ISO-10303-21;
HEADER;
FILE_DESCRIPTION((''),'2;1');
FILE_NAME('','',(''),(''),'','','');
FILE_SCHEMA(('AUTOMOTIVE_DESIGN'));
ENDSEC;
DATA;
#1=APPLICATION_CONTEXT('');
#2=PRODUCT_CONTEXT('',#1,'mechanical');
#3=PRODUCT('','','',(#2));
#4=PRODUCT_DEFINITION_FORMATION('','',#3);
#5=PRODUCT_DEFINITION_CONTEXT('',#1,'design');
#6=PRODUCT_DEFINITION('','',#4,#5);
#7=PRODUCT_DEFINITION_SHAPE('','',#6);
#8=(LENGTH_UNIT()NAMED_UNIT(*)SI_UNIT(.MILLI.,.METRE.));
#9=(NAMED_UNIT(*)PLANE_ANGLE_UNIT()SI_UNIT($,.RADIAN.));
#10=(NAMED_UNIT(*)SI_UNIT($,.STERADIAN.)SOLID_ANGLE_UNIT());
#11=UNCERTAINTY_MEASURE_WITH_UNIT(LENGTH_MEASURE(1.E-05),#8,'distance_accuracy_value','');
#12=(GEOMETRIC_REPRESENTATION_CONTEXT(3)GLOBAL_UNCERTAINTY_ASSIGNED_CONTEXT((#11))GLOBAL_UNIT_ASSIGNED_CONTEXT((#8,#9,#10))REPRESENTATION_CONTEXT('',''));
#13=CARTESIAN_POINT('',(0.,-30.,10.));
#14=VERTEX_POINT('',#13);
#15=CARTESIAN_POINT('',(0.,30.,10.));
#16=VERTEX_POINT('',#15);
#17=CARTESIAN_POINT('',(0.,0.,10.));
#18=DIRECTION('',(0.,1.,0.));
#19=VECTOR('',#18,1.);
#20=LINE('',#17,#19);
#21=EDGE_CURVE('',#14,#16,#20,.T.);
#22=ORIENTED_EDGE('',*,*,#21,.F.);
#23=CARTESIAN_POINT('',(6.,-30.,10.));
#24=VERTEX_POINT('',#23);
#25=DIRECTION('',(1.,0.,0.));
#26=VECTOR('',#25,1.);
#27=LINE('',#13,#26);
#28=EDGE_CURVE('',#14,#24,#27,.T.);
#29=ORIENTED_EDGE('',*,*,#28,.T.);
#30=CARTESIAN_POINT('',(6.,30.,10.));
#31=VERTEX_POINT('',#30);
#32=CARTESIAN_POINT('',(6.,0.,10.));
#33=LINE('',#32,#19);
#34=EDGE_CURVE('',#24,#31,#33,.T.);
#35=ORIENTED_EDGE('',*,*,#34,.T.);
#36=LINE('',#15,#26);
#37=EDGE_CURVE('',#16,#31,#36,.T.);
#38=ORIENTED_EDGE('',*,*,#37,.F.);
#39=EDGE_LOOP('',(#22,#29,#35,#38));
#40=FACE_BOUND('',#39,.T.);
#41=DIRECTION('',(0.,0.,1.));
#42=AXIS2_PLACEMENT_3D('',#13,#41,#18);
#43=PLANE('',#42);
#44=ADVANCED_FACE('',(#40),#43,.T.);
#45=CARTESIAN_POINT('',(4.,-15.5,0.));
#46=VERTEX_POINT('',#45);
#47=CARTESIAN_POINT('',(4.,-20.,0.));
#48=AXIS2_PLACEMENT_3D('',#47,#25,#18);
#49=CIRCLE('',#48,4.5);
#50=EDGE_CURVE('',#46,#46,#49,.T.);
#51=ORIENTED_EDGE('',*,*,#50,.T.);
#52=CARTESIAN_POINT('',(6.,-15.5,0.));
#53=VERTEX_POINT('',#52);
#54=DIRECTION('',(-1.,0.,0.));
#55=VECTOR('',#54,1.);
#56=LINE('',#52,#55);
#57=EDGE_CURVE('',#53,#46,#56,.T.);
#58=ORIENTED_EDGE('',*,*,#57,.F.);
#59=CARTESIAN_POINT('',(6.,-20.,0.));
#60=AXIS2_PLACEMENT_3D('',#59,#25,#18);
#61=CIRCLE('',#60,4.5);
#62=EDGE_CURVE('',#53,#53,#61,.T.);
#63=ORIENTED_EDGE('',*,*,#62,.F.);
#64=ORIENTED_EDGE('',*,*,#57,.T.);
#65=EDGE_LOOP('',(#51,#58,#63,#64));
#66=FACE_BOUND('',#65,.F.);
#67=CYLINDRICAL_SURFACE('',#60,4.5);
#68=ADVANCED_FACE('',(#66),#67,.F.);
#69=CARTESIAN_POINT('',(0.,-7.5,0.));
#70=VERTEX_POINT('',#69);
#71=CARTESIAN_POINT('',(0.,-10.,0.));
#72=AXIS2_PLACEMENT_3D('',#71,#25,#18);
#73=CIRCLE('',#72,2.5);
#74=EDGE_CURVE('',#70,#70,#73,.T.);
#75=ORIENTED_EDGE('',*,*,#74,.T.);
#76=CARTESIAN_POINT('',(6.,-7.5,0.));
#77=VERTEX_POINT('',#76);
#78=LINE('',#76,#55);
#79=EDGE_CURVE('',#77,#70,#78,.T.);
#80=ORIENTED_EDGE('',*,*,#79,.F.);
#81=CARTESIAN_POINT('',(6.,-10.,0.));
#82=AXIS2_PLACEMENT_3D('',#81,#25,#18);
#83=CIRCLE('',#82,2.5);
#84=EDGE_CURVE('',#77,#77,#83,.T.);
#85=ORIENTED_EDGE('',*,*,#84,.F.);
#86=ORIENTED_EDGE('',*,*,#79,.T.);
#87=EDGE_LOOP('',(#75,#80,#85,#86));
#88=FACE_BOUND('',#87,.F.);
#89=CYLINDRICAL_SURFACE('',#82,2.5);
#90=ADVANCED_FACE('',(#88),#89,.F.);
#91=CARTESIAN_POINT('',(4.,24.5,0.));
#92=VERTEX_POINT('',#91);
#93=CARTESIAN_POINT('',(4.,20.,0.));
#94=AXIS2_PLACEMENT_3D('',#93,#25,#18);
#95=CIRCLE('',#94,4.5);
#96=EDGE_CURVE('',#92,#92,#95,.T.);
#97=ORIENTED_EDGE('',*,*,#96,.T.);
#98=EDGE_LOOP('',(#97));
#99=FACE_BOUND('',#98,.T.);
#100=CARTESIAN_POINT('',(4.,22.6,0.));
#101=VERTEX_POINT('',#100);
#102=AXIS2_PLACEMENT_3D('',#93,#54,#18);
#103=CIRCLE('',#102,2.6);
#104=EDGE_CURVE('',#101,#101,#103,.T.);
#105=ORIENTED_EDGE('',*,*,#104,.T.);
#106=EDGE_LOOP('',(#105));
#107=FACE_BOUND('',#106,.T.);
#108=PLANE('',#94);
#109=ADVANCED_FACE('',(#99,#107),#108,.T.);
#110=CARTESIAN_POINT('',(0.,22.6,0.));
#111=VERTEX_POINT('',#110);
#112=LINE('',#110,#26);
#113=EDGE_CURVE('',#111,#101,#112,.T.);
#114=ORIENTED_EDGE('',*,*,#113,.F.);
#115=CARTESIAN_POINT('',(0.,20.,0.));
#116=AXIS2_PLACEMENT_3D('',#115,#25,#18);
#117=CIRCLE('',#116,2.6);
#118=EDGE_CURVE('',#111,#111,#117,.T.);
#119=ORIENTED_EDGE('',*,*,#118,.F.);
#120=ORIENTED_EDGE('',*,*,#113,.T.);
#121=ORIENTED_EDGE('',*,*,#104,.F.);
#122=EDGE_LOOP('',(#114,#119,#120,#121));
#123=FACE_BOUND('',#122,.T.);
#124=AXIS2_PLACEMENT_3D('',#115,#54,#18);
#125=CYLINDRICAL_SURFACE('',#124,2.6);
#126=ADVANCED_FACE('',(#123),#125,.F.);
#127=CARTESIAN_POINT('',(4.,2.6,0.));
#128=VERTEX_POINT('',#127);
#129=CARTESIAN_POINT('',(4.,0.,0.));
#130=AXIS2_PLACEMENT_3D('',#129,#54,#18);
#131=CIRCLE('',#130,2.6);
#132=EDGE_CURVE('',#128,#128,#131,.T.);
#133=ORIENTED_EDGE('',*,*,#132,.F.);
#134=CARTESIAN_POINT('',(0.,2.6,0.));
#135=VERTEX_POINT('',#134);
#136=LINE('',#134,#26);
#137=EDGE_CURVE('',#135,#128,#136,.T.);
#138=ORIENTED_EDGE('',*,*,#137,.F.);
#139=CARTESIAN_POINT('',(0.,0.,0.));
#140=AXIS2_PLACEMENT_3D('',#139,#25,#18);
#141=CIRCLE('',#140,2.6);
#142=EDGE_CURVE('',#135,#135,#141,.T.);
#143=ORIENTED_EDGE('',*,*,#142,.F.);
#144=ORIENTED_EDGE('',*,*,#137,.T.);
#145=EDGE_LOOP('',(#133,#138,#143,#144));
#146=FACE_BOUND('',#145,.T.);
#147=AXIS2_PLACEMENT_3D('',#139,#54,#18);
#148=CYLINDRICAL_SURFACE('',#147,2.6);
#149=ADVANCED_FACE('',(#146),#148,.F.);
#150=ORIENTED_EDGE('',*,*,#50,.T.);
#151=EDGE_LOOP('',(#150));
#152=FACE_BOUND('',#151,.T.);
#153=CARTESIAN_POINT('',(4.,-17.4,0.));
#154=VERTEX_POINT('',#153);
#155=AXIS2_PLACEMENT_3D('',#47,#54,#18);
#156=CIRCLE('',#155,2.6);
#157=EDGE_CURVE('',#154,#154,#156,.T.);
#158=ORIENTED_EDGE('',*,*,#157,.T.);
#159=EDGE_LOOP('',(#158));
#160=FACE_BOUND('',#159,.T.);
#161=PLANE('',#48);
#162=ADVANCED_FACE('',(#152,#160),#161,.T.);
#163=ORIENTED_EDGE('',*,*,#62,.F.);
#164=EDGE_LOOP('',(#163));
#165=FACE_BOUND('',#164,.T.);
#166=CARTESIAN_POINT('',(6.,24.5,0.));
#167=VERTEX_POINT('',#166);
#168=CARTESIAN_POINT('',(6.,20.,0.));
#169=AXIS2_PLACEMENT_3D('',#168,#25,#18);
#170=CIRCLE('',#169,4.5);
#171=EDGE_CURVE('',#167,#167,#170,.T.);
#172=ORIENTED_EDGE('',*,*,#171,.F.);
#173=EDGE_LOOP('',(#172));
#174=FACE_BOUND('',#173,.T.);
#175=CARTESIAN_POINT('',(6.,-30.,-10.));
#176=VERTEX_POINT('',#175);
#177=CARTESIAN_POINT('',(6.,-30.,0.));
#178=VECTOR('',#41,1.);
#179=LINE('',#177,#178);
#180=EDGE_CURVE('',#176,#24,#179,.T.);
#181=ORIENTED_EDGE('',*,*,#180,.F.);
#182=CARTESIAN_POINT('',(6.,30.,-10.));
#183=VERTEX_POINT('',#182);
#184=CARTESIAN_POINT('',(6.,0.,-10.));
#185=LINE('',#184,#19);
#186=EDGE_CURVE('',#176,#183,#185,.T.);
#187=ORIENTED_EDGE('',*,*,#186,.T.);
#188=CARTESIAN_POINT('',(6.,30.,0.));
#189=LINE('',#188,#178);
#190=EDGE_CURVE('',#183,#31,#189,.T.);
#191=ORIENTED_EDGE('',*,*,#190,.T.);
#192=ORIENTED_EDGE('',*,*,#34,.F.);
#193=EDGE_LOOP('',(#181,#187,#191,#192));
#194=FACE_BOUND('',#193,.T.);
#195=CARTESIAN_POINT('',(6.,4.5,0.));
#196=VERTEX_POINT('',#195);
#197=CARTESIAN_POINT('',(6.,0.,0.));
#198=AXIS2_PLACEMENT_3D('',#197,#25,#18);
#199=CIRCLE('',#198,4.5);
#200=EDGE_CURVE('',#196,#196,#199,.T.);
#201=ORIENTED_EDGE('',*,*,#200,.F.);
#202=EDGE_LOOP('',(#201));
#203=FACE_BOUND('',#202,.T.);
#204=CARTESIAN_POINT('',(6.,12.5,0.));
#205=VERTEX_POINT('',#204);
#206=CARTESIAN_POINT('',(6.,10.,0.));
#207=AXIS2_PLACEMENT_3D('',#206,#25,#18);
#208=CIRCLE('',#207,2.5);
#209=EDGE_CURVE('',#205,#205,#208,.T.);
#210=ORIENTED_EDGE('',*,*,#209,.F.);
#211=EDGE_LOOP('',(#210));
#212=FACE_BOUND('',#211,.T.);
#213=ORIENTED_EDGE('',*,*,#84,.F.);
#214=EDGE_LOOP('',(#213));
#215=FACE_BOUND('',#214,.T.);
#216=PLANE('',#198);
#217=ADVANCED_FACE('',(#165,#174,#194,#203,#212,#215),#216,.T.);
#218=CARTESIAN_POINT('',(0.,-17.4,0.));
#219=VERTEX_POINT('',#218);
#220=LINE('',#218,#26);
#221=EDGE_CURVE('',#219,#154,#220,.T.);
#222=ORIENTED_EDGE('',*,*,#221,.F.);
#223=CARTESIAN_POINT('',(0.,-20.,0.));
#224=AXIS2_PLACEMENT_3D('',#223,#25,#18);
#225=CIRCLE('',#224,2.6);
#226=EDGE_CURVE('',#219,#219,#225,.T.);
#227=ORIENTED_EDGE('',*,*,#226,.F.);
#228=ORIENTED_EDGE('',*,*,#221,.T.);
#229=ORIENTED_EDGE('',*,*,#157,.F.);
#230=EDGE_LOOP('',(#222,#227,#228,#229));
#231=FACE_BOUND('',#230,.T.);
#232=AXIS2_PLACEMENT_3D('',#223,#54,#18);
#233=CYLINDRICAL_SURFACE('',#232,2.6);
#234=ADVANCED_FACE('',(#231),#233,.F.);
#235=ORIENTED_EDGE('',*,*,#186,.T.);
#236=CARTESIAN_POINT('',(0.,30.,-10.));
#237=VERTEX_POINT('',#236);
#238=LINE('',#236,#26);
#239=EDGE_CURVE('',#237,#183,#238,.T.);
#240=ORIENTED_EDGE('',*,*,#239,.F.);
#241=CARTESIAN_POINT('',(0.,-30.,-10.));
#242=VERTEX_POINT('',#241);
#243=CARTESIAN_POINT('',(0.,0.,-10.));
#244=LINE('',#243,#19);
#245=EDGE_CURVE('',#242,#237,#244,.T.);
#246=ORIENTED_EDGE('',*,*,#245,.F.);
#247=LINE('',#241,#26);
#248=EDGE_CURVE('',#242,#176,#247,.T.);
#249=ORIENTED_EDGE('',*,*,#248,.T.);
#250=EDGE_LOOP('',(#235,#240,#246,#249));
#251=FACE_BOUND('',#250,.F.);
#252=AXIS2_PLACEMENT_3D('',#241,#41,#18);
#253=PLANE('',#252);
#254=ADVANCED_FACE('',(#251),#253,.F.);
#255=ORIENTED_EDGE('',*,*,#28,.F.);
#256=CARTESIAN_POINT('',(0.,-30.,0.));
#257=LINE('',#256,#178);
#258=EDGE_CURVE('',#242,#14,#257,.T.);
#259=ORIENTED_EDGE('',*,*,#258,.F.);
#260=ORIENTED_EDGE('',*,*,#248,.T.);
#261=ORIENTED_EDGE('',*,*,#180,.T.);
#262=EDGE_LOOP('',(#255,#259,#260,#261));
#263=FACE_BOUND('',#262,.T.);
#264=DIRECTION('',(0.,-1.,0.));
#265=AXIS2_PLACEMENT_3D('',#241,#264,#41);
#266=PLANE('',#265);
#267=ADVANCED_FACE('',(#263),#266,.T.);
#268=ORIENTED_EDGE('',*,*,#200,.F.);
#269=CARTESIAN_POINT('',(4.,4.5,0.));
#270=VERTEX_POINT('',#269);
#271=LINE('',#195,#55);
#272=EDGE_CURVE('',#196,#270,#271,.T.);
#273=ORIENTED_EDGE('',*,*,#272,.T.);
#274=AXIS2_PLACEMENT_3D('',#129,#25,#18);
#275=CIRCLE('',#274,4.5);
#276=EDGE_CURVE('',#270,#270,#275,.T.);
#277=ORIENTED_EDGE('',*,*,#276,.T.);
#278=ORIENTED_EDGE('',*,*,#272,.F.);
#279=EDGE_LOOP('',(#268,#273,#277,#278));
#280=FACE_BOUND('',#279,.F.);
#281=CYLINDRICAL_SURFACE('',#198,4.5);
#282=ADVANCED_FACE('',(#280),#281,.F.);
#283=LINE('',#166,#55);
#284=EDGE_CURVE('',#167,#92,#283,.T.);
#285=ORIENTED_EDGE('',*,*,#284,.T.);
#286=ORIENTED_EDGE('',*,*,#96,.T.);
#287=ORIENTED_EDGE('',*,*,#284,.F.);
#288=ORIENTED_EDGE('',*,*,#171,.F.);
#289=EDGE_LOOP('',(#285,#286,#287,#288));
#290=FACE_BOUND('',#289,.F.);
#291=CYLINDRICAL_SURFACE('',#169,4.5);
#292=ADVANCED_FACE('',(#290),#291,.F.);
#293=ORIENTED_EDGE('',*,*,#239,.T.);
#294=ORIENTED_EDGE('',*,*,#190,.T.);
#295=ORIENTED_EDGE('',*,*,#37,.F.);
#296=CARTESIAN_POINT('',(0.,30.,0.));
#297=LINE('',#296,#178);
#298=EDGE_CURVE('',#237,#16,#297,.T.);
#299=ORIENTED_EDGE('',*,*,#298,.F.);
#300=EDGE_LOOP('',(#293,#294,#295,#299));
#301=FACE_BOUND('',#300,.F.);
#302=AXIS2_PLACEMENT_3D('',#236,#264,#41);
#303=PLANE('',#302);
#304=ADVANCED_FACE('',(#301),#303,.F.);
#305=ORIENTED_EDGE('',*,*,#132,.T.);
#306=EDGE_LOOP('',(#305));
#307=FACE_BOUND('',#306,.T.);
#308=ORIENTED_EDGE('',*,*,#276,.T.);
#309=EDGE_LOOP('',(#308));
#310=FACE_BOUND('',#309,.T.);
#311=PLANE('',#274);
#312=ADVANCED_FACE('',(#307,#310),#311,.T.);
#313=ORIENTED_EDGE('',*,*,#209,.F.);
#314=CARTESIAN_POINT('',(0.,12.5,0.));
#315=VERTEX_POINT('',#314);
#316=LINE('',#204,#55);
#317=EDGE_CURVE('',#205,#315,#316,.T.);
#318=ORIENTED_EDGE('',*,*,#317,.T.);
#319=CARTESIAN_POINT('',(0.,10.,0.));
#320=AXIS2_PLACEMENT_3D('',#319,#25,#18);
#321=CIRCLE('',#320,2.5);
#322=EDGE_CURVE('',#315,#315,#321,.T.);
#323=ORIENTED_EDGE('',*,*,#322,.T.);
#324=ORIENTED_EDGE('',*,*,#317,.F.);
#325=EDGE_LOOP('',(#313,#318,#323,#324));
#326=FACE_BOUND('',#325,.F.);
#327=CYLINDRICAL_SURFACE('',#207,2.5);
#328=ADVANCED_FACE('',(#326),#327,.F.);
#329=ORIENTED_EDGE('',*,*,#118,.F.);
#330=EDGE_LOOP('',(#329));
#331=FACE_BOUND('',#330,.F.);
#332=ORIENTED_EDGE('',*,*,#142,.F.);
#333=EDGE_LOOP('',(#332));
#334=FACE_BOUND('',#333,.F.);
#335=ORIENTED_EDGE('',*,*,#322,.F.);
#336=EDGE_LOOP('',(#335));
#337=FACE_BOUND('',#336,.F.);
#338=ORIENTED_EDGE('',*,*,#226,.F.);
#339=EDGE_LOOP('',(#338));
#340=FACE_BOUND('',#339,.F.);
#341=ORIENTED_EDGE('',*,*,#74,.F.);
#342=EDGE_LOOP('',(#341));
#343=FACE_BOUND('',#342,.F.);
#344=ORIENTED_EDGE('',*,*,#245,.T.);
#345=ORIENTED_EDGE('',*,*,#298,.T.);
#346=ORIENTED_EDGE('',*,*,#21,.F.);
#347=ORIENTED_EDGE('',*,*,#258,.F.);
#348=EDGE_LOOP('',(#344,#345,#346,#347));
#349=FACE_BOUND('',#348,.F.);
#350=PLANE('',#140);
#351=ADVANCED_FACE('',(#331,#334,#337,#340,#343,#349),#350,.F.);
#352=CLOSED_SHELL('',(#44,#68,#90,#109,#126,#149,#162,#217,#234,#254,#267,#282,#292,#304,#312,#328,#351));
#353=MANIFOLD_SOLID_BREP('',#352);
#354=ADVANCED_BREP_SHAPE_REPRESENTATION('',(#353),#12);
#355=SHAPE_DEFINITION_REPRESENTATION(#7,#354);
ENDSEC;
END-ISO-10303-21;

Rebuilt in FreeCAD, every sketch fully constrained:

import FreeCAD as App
import Part
import Sketcher

V = App.Vector

doc = App.newDocument("Part")
body = doc.addObject("PartDesign::Body", "Body")

# Sketch on YZ plane
sketch1 = doc.addObject("Sketcher::SketchObject", "Sketch")
body.addObject(sketch1)
sketch1.AttachmentSupport = (doc.YZ_Plane, [""])
sketch1.MapMode = "FlatFace"
sketch1.addGeometry(Part.LineSegment(V(-30, 10, 0), V(-30, -10, 0)), False)
sketch1.addGeometry(Part.LineSegment(V(-30, -10, 0), V(30, -10, 0)), False)
sketch1.addGeometry(Part.LineSegment(V(30, -10, 0), V(30, 10, 0)), False)
sketch1.addGeometry(Part.LineSegment(V(30, 10, 0), V(-30, 10, 0)), False)
sketch1.addGeometry(Part.Circle(V(-20, 0, 0), V(0, 0, 1), 2.6), False)
sketch1.addGeometry(Part.Circle(V(0, 0, 0), V(0, 0, 1), 2.6), False)
sketch1.addGeometry(Part.Circle(V(20, 0, 0), V(0, 0, 1), 2.6), False)
sketch1.addConstraint(Sketcher.Constraint("Coincident", 0, 2, 1, 1))
sketch1.addConstraint(Sketcher.Constraint("Coincident", 1, 2, 2, 1))
sketch1.addConstraint(Sketcher.Constraint("Coincident", 2, 2, 3, 1))
sketch1.addConstraint(Sketcher.Constraint("Coincident", 3, 2, 0, 1))
sketch1.addConstraint(Sketcher.Constraint("Vertical", 0))
sketch1.addConstraint(Sketcher.Constraint("Horizontal", 1))
sketch1.addConstraint(Sketcher.Constraint("Vertical", 2))
sketch1.addConstraint(Sketcher.Constraint("Horizontal", 3))
sketch1.addConstraint(Sketcher.Constraint("Coincident", 5, 3, -1, 1))
sketch1.addConstraint(Sketcher.Constraint("Equal", 4, 5))
sketch1.addConstraint(Sketcher.Constraint("Equal", 5, 6))
sketch1.addConstraint(Sketcher.Constraint("Symmetric", 4, 3, 6, 3, -1, 1))
sketch1.addConstraint(Sketcher.Constraint("Symmetric", 0, 2, 2, 2, -1, 1))
sketch1.addConstraint(Sketcher.Constraint("PointOnObject", 4, 3, -1))
sketch1.addConstraint(Sketcher.Constraint("Diameter", 4, 5.2))
sketch1.addConstraint(Sketcher.Constraint("DistanceX", 1, 1, 1, 2, 60.0))
sketch1.addConstraint(Sketcher.Constraint("DistanceY", 0, 2, 0, 1, 20.0))
sketch1.addConstraint(Sketcher.Constraint("DistanceX", 4, 3, -1, 1, 20.0))
pad1 = doc.addObject("PartDesign::Pad", "Pad")
body.addObject(pad1)
pad1.Profile = sketch1
pad1.Length = 6

# Sketch on YZ plane
sketch2 = doc.addObject("Sketcher::SketchObject", "Sketch001")
body.addObject(sketch2)
sketch2.AttachmentSupport = (doc.YZ_Plane, [""])
sketch2.MapMode = "FlatFace"
sketch2.AttachmentOffset = App.Placement(V(0, 0, 6), App.Rotation())
sketch2.addGeometry(Part.Circle(V(-20, 0, 0), V(0, 0, 1), 4.5), False)
sketch2.addGeometry(Part.Circle(V(0, 0, 0), V(0, 0, 1), 4.5), False)
sketch2.addGeometry(Part.Circle(V(20, 0, 0), V(0, 0, 1), 4.5), False)
sketch2.addConstraint(Sketcher.Constraint("Coincident", 1, 3, -1, 1))
sketch2.addConstraint(Sketcher.Constraint("Equal", 0, 1))
sketch2.addConstraint(Sketcher.Constraint("Equal", 1, 2))
sketch2.addConstraint(Sketcher.Constraint("Symmetric", 0, 3, 2, 3, -1, 1))
sketch2.addConstraint(Sketcher.Constraint("PointOnObject", 0, 3, -1))
sketch2.addConstraint(Sketcher.Constraint("Diameter", 0, 9.0))
sketch2.addConstraint(Sketcher.Constraint("DistanceX", 0, 3, -1, 1, 20.0))
pocket1 = doc.addObject("PartDesign::Pocket", "Pocket")
body.addObject(pocket1)
pocket1.Profile = sketch2
pocket1.Length = 2

# Sketch on YZ plane
sketch3 = doc.addObject("Sketcher::SketchObject", "Sketch002")
body.addObject(sketch3)
sketch3.AttachmentSupport = (doc.YZ_Plane, [""])
sketch3.MapMode = "FlatFace"
sketch3.AttachmentOffset = App.Placement(V(0, 0, 6), App.Rotation())
sketch3.addGeometry(Part.Circle(V(-10, 0, 0), V(0, 0, 1), 2.5), False)
sketch3.addGeometry(Part.Circle(V(10, 0, 0), V(0, 0, 1), 2.5), False)
sketch3.addConstraint(Sketcher.Constraint("Equal", 0, 1))
sketch3.addConstraint(Sketcher.Constraint("Symmetric", 0, 3, 1, 3, -1, 1))
sketch3.addConstraint(Sketcher.Constraint("PointOnObject", 0, 3, -1))
sketch3.addConstraint(Sketcher.Constraint("Diameter", 0, 5.0))
sketch3.addConstraint(Sketcher.Constraint("DistanceX", 0, 3, -1, 1, 10.0))
pocket2 = doc.addObject("PartDesign::Pocket", "Pocket001")
body.addObject(pocket2)
pocket2.Profile = sketch3
pocket2.Length = 25

doc.recompute()
